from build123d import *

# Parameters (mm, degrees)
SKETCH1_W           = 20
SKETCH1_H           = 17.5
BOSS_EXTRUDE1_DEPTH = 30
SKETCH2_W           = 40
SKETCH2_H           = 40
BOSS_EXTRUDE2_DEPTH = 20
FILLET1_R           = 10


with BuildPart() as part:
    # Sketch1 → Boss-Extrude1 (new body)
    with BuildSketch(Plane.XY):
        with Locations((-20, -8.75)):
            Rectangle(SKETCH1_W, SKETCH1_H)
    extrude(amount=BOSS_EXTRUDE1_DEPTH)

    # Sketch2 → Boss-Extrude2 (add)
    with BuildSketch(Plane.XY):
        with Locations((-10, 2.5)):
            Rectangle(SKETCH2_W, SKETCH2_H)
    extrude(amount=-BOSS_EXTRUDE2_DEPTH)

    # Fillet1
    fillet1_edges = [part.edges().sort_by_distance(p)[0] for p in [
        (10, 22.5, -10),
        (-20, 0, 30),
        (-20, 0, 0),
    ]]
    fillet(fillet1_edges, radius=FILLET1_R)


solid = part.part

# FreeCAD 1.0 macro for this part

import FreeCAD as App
import Part
import Sketcher


def edges_at(feature, points):
    """Names of the edges that pass closest to the given points."""
    edges = feature.Shape.Edges
    near = lambda p: min(range(len(edges)), key=lambda i: edges[i].distToShape(Part.Vertex(*p))[0])
    return sorted({f"Edge{near(p) + 1}" for p in points})

doc = App.newDocument("Part")
body = doc.addObject("PartDesign::Body", "Body")

# Sketch on XY plane
sketch1 = body.newObject("Sketcher::SketchObject", "Sketch")
sketch1.AttachmentSupport = (doc.getObject("XY_Plane"), [""])
sketch1.MapMode = "FlatFace"
sketch1.addGeometry([
    Part.LineSegment(App.Vector(-30, 0, 0), App.Vector(-30, -18, 0)),
    Part.LineSegment(App.Vector(-30, -18, 0), App.Vector(-10, -18, 0)),
    Part.LineSegment(App.Vector(-10, -18, 0), App.Vector(-10, 0, 0)),
    Part.LineSegment(App.Vector(-10, 0, 0), App.Vector(-30, 0, 0)),
], False)
sketch1.addConstraint([
    Sketcher.Constraint("Coincident", 0, 2, 1, 1),
    Sketcher.Constraint("Coincident", 1, 2, 2, 1),
    Sketcher.Constraint("Coincident", 2, 2, 3, 1),
    Sketcher.Constraint("Coincident", 3, 2, 0, 1),
    Sketcher.Constraint("Vertical", 0),
    Sketcher.Constraint("Horizontal", 1),
    Sketcher.Constraint("Vertical", 2),
    Sketcher.Constraint("Horizontal", 3),
    Sketcher.Constraint("PointOnObject", 2, 2, -1),
    Sketcher.Constraint("DistanceX", 1, 1, 1, 2, 20.0),
    Sketcher.Constraint("DistanceY", 0, 2, 0, 1, 17.5),
    Sketcher.Constraint("DistanceX", 0, 2, -1, 1, 30.0),
])
pad1 = body.newObject("PartDesign::Pad", "Pad")
pad1.Profile = sketch1
pad1.Length = 30

# Sketch on XY plane
sketch2 = body.newObject("Sketcher::SketchObject", "Sketch001")
sketch2.AttachmentSupport = (doc.getObject("XY_Plane"), [""])
sketch2.MapMode = "FlatFace"
sketch2.addGeometry([
    Part.LineSegment(App.Vector(-30, 22, 0), App.Vector(-30, -18, 0)),
    Part.LineSegment(App.Vector(-30, -18, 0), App.Vector(10, -18, 0)),
    Part.LineSegment(App.Vector(10, -18, 0), App.Vector(10, 22, 0)),
    Part.LineSegment(App.Vector(10, 22, 0), App.Vector(-30, 22, 0)),
], False)
sketch2.addConstraint([
    Sketcher.Constraint("Coincident", 0, 2, 1, 1),
    Sketcher.Constraint("Coincident", 1, 2, 2, 1),
    Sketcher.Constraint("Coincident", 2, 2, 3, 1),
    Sketcher.Constraint("Coincident", 3, 2, 0, 1),
    Sketcher.Constraint("Vertical", 0),
    Sketcher.Constraint("Horizontal", 1),
    Sketcher.Constraint("Vertical", 2),
    Sketcher.Constraint("Horizontal", 3),
    Sketcher.Constraint("Equal", 3, 0),
    Sketcher.Constraint("DistanceX", 1, 1, 1, 2, 40.0),
    Sketcher.Constraint("DistanceX", 0, 2, -1, 1, 30.0),
    Sketcher.Constraint("DistanceY", 0, 2, -1, 1, 17.5),
])
pad2 = body.newObject("PartDesign::Pad", "Pad001")
pad2.Profile = sketch2
pad2.Length = 20
pad2.Reversed = True
doc.recompute()

fillet = body.newObject("PartDesign::Fillet", "Fillet")
fillet.Base = (pad2, edges_at(pad2, [(10, 22.5, -10), (-20, 0, 30), (-20, 0, 0)]))
fillet.Radius = 10

doc.recompute()
